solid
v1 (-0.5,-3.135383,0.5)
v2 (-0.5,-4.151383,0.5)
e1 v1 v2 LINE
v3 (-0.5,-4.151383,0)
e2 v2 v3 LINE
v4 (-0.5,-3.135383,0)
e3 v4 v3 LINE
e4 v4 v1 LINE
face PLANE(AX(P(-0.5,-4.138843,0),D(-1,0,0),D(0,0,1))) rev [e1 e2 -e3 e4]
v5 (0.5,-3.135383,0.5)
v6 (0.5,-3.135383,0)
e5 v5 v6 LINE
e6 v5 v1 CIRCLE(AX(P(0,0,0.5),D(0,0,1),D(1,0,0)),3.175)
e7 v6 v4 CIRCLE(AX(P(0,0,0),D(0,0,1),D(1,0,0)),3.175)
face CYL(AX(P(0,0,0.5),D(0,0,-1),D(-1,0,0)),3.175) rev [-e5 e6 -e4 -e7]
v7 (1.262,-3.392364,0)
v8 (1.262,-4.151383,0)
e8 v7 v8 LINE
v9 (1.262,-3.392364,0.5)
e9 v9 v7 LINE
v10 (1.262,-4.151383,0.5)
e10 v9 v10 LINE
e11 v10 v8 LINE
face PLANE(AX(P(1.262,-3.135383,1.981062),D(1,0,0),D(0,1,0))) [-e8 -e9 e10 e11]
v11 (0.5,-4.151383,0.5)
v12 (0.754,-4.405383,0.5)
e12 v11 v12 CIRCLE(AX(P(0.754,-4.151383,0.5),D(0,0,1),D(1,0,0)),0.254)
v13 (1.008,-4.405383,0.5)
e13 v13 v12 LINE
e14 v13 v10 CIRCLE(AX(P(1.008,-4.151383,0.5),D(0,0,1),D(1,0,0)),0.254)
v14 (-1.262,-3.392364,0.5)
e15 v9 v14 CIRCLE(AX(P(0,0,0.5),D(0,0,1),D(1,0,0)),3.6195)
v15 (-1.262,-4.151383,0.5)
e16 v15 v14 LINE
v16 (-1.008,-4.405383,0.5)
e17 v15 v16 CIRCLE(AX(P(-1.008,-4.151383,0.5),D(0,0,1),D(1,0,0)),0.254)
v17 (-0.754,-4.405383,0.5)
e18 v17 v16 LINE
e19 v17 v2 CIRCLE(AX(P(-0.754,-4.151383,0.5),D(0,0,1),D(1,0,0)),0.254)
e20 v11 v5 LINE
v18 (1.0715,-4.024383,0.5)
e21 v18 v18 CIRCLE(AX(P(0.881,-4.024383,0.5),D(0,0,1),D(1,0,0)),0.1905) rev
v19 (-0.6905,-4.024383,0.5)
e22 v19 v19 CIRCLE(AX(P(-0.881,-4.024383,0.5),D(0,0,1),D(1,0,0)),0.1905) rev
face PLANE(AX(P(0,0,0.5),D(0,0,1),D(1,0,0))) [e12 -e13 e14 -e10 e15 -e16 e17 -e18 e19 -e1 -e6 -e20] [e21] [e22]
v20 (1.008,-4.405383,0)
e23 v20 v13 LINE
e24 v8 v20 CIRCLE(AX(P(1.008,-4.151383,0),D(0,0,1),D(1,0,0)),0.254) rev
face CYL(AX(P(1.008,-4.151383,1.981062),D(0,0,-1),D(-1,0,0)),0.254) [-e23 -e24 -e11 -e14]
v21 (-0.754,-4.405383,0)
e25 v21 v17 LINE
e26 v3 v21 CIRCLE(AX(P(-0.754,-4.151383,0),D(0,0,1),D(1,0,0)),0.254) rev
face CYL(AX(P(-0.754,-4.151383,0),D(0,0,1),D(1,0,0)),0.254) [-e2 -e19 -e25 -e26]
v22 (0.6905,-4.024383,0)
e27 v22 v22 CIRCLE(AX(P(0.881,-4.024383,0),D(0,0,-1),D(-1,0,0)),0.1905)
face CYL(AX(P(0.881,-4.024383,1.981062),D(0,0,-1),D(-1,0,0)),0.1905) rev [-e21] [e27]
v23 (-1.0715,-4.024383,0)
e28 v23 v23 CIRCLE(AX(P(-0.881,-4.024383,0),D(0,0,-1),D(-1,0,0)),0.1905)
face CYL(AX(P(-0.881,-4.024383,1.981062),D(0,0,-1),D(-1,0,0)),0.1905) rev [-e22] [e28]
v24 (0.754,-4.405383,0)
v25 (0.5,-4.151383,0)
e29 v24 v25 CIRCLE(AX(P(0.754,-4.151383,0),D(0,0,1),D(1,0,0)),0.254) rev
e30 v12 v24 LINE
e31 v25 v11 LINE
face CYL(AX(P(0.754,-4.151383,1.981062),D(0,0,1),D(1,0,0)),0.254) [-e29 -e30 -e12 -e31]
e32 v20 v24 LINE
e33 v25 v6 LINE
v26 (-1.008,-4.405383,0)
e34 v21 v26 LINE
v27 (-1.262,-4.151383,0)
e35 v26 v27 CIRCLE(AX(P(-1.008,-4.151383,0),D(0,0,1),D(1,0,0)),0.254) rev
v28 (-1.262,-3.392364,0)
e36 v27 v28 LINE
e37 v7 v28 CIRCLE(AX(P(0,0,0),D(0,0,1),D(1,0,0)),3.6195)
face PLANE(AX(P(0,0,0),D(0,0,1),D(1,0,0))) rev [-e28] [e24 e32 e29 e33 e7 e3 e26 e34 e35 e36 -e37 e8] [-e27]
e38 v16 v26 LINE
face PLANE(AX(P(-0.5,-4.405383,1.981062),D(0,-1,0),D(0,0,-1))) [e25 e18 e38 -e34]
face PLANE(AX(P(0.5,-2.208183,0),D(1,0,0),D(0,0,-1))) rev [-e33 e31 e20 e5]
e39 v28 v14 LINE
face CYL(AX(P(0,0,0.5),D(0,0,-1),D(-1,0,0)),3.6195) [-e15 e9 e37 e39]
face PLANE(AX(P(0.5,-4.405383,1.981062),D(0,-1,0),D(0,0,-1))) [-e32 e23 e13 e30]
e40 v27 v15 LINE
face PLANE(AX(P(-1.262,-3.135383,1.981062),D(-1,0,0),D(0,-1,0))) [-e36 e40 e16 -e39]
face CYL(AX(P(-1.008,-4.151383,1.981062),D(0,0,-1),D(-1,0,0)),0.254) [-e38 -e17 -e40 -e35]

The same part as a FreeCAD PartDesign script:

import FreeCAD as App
import Part
import Sketcher
Q = App.Units.Quantity


def edges_at(feature, points):
    """Names of the edges that pass closest to the given points."""
    edges = feature.Shape.Edges
    near = lambda p: min(range(len(edges)), key=lambda i: edges[i].distToShape(Part.Vertex(*p))[0])
    return sorted({f"Edge{near(p) + 1}" for p in points})


def add_polygon(sketch, points):
    """Adds a closed chain of lines whose ends are joined by coincident constraints."""
    first, n = sketch.GeometryCount, len(points)
    for a, b in zip(points, points[1:] + points[:1]):
        sketch.addGeometry(Part.LineSegment(App.Vector(*a, 0), App.Vector(*b, 0)), False)
    for i in range(n):
        sketch.addConstraint(Sketcher.Constraint("Coincident", first + i, 2, first + (i + 1) % n, 1))

doc = App.newDocument("Part")
params = doc.addObject("Spreadsheet::Sheet", "Params")
for row, (alias, value) in enumerate([
    ("sketch1_diameter", "0.25 in"),
    ("sketch1_diameter2", "0.285 in"),
    ("pad1_length", "0.5 mm"),
    ("sketch3_diameter", "0.015 in"),
    ("sketch3_width", "0.03 in"),
    ("sketch3_height", "0.05 in"),
    ("pad2_length", "0.5 mm"),
    ("fillet_radius", "0.01 in"),
], start=1):
    params.set(f"A{row}", alias)
    params.set(f"B{row}", "=" + value)
    params.setAlias(f"B{row}", alias)

body = doc.addObject("PartDesign::Body", "Body")

# Sketch on XY plane
sketch1 = body.newObject("Sketcher::SketchObject", "Sketch")
sketch1.AttachmentSupport = (doc.getObject("XY_Plane"), [""])
sketch1.MapMode = "FlatFace"
sketch1.addGeometry(Part.Circle(App.Vector(0, 0, 0), App.Vector(0, 0, 1), 3.6), False)
sketch1.addGeometry(Part.Circle(App.Vector(0, 0, 0), App.Vector(0, 0, 1), 3.2), False)
sketch1.addConstraint(Sketcher.Constraint("Coincident", 0, 3, -1, 1))
sketch1.addConstraint(Sketcher.Constraint("Coincident", 1, 3, -1, 1))
sketch1.addConstraint(Sketcher.Constraint("Diameter", 1, Q("0.25 in")))
sketch1.addConstraint(Sketcher.Constraint("Diameter", 0, Q("0.285 in")))
sketch1.setExpression("Constraints[2]", "Params.sketch1_diameter")
sketch1.setExpression("Constraints[3]", "Params.sketch1_diameter2")
pad1 = body.newObject("PartDesign::Pad", "Pad")
pad1.Profile = sketch1
pad1.setExpression("Length", "Params.pad1_length")

# Sketch on XY plane
sketch2 = body.newObject("Sketcher::SketchObject", "Sketch001")
sketch2.AttachmentSupport = (doc.getObject("XY_Plane"), [""])
sketch2.MapMode = "FlatFace"
sketch2.AttachmentOffset = App.Placement(App.Vector(0, 0, 0.5), App.Rotation())
add_polygon(sketch2, [(0.5, -4.1), (0.5, 2.2), (-0.5, 2.2), (-0.5, -4.1)])  # lines 0-3
sketch2.addConstraint(Sketcher.Constraint("Vertical", 0))
sketch2.addConstraint(Sketcher.Constraint("Horizontal", 1))
sketch2.addConstraint(Sketcher.Constraint("Vertical", 2))
sketch2.addConstraint(Sketcher.Constraint("Horizontal", 3))
sketch2.addConstraint(Sketcher.Constraint("DistanceX", 1, 2, 1, 1, Q("1 mm")))
sketch2.addConstraint(Sketcher.Constraint("DistanceX", -1, 1, 0, 2, Q("0.5 mm")))
sketch2.addConstraint(Sketcher.Constraint("DistanceY", 0, 1, 0, 2, Q("6.347026 mm")))
sketch2.addConstraint(Sketcher.Constraint("DistanceY", -1, 1, 0, 2, Q("2.208183 mm")))
pocket1 = body.newObject("PartDesign::Pocket", "Pocket")
pocket1.Profile = sketch2
pocket1.Type = "ThroughAll"

# Sketch on XY plane
sketch3 = body.newObject("Sketcher::SketchObject", "Sketch002")
sketch3.AttachmentSupport = (doc.getObject("XY_Plane"), [""])
sketch3.MapMode = "FlatFace"
add_polygon(sketch3, [(-0.5, -3.14), (-0.5, -4.41), (-1.26, -4.41), (-1.26, -3.14)])  # lines 0-3
sketch3.addGeometry(Part.Circle(App.Vector(-0.88, -4.02, 0), App.Vector(0, 0, 1), 0.19), False)  # 4
add_polygon(sketch3, [(1.26, -3.14), (1.26, -4.41), (0.5, -4.41), (0.5, -3.14)])  # lines 5-8
sketch3.addGeometry(Part.Circle(App.Vector(0.88, -4.02, 0), App.Vector(0, 0, 1), 0.19), False)  # 9
sketch3.addConstraint(Sketcher.Constraint("Vertical", 0))
sketch3.addConstraint(Sketcher.Constraint("Horizontal", 1))
sketch3.addConstraint(Sketcher.Constraint("Vertical", 2))
sketch3.addConstraint(Sketcher.Constraint("Horizontal", 3))
sketch3.addConstraint(Sketcher.Constraint("Vertical", 5))
sketch3.addConstraint(Sketcher.Constraint("Horizontal", 6))
sketch3.addConstraint(Sketcher.Constraint("Vertical", 7))
sketch3.addConstraint(Sketcher.Constraint("Horizontal", 8))
sketch3.addConstraint(Sketcher.Constraint("Equal", 4, 9))
sketch3.addConstraint(Sketcher.Constraint("Symmetric", 4, 3, 9, 3, -2))
sketch3.addConstraint(Sketcher.Constraint("Symmetric", 1, 2, 5, 2, -2))
sketch3.addConstraint(Sketcher.Constraint("Symmetric", 3, 2, 7, 2, -2))
sketch3.addConstraint(Sketcher.Constraint("Diameter", 4, Q("0.015 in")))
sketch3.addConstraint(Sketcher.Constraint("DistanceX", 1, 2, 1, 1, Q("0.03 in")))
sketch3.addConstraint(Sketcher.Constraint("DistanceY", 0, 2, 0, 1, Q("0.05 in")))
sketch3.addConstraint(Sketcher.Constraint("DistanceX", 4, 3, 0, 2, Q("0.015 in")))
sketch3.addConstraint(Sketcher.Constraint("DistanceY", 0, 2, 4, 3, Q("0.015 in")))
sketch3.addConstraint(Sketcher.Constraint("DistanceX", 4, 3, -1, 1, Q("0.881 mm")))
sketch3.addConstraint(Sketcher.Constraint("DistanceY", 4, 3, -1, 1, Q("4.024383 mm")))
sketch3.setExpression("Constraints[20]", "Params.sketch3_diameter")
sketch3.setExpression("Constraints[21]", "Params.sketch3_width")
sketch3.setExpression("Constraints[22]", "Params.sketch3_height")
pad2 = body.newObject("PartDesign::Pad", "Pad001")
pad2.Profile = sketch3
pad2.setExpression("Length", "Params.pad2_length")
doc.recompute()

fillet = body.newObject("PartDesign::Fillet", "Fillet")
fillet.Base = (pad2, edges_at(pad2, [
    (-0.5, -4.405, 0.25),
    (-1.262, -4.405, 0.25),
    (1.262, -4.405, 0.25),
    (0.5, -4.405, 0.25),
]))
fillet.setExpression("Radius", "Params.fillet_radius")

doc.recompute()
